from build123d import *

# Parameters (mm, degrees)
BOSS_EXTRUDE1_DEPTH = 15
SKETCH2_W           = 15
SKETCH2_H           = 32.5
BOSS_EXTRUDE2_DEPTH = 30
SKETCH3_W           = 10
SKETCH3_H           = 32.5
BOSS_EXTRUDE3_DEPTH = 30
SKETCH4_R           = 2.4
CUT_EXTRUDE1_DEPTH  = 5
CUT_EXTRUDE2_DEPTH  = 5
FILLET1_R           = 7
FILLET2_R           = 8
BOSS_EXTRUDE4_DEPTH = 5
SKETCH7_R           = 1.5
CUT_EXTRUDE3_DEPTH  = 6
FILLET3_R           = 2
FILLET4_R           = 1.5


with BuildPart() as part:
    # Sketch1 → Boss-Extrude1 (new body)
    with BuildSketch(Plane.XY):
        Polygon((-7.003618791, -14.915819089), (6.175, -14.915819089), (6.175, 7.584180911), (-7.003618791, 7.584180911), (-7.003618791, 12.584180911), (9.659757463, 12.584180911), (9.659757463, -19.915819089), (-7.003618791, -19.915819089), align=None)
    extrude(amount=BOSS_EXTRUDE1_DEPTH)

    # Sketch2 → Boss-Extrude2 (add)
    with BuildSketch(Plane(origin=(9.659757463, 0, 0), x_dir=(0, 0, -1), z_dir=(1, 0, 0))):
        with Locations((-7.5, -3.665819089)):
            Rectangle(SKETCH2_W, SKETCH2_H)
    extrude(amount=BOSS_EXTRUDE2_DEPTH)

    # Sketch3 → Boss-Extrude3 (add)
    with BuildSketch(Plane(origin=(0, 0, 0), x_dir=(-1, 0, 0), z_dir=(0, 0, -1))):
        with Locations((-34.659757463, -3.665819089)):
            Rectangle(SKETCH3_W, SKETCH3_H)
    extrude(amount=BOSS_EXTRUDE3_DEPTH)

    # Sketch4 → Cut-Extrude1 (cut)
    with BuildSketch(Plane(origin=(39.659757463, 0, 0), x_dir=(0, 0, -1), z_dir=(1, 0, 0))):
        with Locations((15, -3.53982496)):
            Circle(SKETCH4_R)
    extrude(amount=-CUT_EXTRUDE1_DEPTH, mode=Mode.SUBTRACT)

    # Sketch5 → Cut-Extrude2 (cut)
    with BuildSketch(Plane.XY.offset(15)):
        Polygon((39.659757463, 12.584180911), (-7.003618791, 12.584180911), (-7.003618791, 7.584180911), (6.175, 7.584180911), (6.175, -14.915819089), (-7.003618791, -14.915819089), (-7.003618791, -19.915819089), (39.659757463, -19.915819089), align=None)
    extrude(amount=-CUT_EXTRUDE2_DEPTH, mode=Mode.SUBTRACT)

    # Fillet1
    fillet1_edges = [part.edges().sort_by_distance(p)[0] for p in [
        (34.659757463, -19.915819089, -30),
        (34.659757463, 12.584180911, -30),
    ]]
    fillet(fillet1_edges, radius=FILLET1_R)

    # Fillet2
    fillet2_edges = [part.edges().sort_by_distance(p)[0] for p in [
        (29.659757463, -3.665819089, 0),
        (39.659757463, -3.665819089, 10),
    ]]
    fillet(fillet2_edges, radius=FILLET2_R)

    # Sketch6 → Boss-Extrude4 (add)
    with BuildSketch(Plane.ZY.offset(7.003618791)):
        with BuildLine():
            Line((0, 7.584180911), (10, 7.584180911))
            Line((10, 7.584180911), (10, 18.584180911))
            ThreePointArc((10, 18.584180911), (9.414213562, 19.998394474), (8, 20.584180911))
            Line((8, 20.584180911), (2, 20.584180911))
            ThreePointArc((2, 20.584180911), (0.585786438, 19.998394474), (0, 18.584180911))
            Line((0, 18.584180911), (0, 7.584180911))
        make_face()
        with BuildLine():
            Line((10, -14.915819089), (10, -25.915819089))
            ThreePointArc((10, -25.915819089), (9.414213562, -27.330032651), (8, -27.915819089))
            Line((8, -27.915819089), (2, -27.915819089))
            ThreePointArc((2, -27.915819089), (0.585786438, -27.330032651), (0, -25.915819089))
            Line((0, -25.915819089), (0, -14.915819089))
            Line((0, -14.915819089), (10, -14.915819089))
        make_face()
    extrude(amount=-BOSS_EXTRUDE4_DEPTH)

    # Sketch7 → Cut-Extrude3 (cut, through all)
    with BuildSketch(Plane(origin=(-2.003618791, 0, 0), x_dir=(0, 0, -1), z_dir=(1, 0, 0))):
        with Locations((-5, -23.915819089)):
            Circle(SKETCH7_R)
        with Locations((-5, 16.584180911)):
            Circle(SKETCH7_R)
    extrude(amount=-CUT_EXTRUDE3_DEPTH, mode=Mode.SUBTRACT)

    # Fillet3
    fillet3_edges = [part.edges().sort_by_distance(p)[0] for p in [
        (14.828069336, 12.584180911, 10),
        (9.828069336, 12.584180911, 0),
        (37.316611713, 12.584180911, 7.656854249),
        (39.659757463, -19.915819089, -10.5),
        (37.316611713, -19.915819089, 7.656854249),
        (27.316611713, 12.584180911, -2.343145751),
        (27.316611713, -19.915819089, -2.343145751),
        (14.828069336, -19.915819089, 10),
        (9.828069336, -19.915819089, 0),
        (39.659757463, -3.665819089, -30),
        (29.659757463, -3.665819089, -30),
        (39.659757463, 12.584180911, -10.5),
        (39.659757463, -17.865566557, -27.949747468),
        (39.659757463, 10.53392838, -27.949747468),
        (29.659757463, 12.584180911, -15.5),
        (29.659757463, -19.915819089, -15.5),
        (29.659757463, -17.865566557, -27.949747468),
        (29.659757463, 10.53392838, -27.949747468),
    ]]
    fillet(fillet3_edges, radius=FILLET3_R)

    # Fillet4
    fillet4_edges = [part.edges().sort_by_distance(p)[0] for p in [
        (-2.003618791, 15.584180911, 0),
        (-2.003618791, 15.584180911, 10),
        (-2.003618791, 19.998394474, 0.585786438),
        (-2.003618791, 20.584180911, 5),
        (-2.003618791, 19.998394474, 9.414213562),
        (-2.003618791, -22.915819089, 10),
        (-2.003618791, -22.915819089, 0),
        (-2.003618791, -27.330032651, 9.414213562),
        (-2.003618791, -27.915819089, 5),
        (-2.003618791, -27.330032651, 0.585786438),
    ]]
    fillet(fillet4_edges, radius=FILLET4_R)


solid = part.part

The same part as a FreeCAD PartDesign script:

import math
import FreeCAD as App
import Part
import Sketcher
Q = App.Units.Quantity


def edges_at(feature, points):
    """Names of the edges that pass closest to the given points."""
    edges = feature.Shape.Edges
    near = lambda p: min(range(len(edges)), key=lambda i: edges[i].distToShape(Part.Vertex(*p))[0])
    return sorted({f"Edge{near(p) + 1}" for p in points})

doc = App.newDocument("Part")
body = doc.addObject("PartDesign::Body", "Body")

# Sketch on XY plane
sketch1 = body.newObject("Sketcher::SketchObject", "Sketch")
sketch1.AttachmentSupport = (doc.getObject("XY_Plane"), [""])
sketch1.MapMode = "FlatFace"
sketch1.addGeometry([
    Part.LineSegment(App.Vector(6, -15, 0), App.Vector(-7, -15, 0)),  # 0
    Part.LineSegment(App.Vector(-7, -15, 0), App.Vector(-7, -20, 0)),  # 1
    Part.LineSegment(App.Vector(-7, -20, 0), App.Vector(10, -20, 0)),  # 2
    Part.LineSegment(App.Vector(10, -20, 0), App.Vector(10, 13, 0)),  # 3
    Part.LineSegment(App.Vector(10, 13, 0), App.Vector(-7, 13, 0)),  # 4
    Part.LineSegment(App.Vector(-7, 13, 0), App.Vector(-7, 8, 0)),  # 5
    Part.LineSegment(App.Vector(-7, 8, 0), App.Vector(6, 8, 0)),  # 6
    Part.LineSegment(App.Vector(6, 8, 0), App.Vector(6, -15, 0)),  # 7
], False)
sketch1.addConstraint([
    Sketcher.Constraint("Coincident", 0, 2, 1, 1),
    Sketcher.Constraint("Coincident", 1, 2, 2, 1),
    Sketcher.Constraint("Coincident", 2, 2, 3, 1),
    Sketcher.Constraint("Coincident", 3, 2, 4, 1),
    Sketcher.Constraint("Coincident", 4, 2, 5, 1),
    Sketcher.Constraint("Coincident", 5, 2, 6, 1),
    Sketcher.Constraint("Coincident", 6, 2, 7, 1),
    Sketcher.Constraint("Coincident", 7, 2, 0, 1),
    Sketcher.Constraint("Horizontal", 0),
    Sketcher.Constraint("Vertical", 1),
    Sketcher.Constraint("Horizontal", 2),
    Sketcher.Constraint("Vertical", 3),
    Sketcher.Constraint("Horizontal", 4),
    Sketcher.Constraint("Vertical", 5),
    Sketcher.Constraint("Horizontal", 6),
    Sketcher.Constraint("Vertical", 7),
    Sketcher.Constraint("Vertical", 1, 2, 4, 2),
    Sketcher.Constraint("Equal", 1, 5),
    Sketcher.Constraint("DistanceY", 1, 2, 1, 1, Q("5 mm")),
    Sketcher.Constraint("DistanceY", 3, 1, 3, 2, Q("32.5 mm")),
    Sketcher.Constraint("DistanceX", -1, 1, 6, 2, Q("6.175 mm")),
    Sketcher.Constraint("DistanceX", 0, 2, 0, 1, Q("13.178619 mm")),
    Sketcher.Constraint("DistanceX", 2, 1, 2, 2, Q("16.663376 mm")),
    Sketcher.Constraint("DistanceY", 0, 2, -1, 1, Q("14.915819 mm")),
])
pad1 = body.newObject("PartDesign::Pad", "Pad")
pad1.Profile = sketch1
pad1.Length = 15

# Sketch on YZ plane
sketch2 = body.newObject("Sketcher::SketchObject", "Sketch001")
sketch2.AttachmentSupport = (doc.getObject("YZ_Plane"), [""])
sketch2.MapMode = "FlatFace"
sketch2.AttachmentOffset = App.Placement(App.Vector(0, 0, 9.659757), App.Rotation())
sketch2.addGeometry([
    Part.LineSegment(App.Vector(13, 15, 0), App.Vector(-20, 15, 0)),
    Part.LineSegment(App.Vector(-20, 15, 0), App.Vector(-20, 0, 0)),
    Part.LineSegment(App.Vector(-20, 0, 0), App.Vector(13, 0, 0)),
    Part.LineSegment(App.Vector(13, 0, 0), App.Vector(13, 15, 0)),
], False)
sketch2.addConstraint([
    Sketcher.Constraint("Coincident", 0, 2, 1, 1),
    Sketcher.Constraint("Coincident", 1, 2, 2, 1),
    Sketcher.Constraint("Coincident", 2, 2, 3, 1),
    Sketcher.Constraint("Coincident", 3, 2, 0, 1),
    Sketcher.Constraint("Horizontal", 0),
    Sketcher.Constraint("Vertical", 1),
    Sketcher.Constraint("Horizontal", 2),
    Sketcher.Constraint("Vertical", 3),
    Sketcher.Constraint("PointOnObject", 1, 2, -1),
    Sketcher.Constraint("DistanceY", 1, 2, 1, 1, Q("15 mm")),
    Sketcher.Constraint("DistanceX", 0, 2, 0, 1, Q("32.5 mm")),
    Sketcher.Constraint("DistanceX", 0, 2, -1, 1, Q("19.915819 mm")),
])
pad2 = body.newObject("PartDesign::Pad", "Pad001")
pad2.Profile = sketch2
pad2.Length = 30

# Sketch on XY plane
sketch3 = body.newObject("Sketcher::SketchObject", "Sketch002")
sketch3.AttachmentSupport = (doc.getObject("XY_Plane"), [""])
sketch3.MapMode = "FlatFace"
sketch3.addGeometry([
    Part.LineSegment(App.Vector(40, 13, 0), App.Vector(40, -20, 0)),
    Part.LineSegment(App.Vector(40, -20, 0), App.Vector(30, -20, 0)),
    Part.LineSegment(App.Vector(30, -20, 0), App.Vector(30, 13, 0)),
    Part.LineSegment(App.Vector(30, 13, 0), App.Vector(40, 13, 0)),
], False)
sketch3.addConstraint([
    Sketcher.Constraint("Coincident", 0, 2, 1, 1),
    Sketcher.Constraint("Coincident", 1, 2, 2, 1),
    Sketcher.Constraint("Coincident", 2, 2, 3, 1),
    Sketcher.Constraint("Coincident", 3, 2, 0, 1),
    Sketcher.Constraint("Vertical", 0),
    Sketcher.Constraint("Horizontal", 1),
    Sketcher.Constraint("Vertical", 2),
    Sketcher.Constraint("Horizontal", 3),
    Sketcher.Constraint("DistanceX", 1, 2, 1, 1, Q("10 mm")),
    Sketcher.Constraint("DistanceY", 0, 2, 0, 1, Q("32.5 mm")),
    Sketcher.Constraint("DistanceY", 0, 2, -1, 1, Q("19.915819 mm")),
    Sketcher.Constraint("DistanceX", -1, 1, 0, 2, Q("39.659757 mm")),
])
pad3 = body.newObject("PartDesign::Pad", "Pad002")
pad3.Profile = sketch3
pad3.Length = 30
pad3.Reversed = True

# Sketch on YZ plane
sketch4 = body.newObject("Sketcher::SketchObject", "Sketch003")
sketch4.AttachmentSupport = (doc.getObject("YZ_Plane"), [""])
sketch4.MapMode = "FlatFace"
sketch4.AttachmentOffset = App.Placement(App.Vector(0, 0, 39.659757), App.Rotation())
sketch4.addGeometry(Part.Circle(App.Vector(-3.5, -15, 0), App.Vector(0, 0, 1), 2.4), False)
sketch4.addConstraint([
    Sketcher.Constraint("Diameter", 0, Q("4.8 mm")),
    Sketcher.Constraint("DistanceY", 0, 3, -1, 1, Q("15 mm")),
    Sketcher.Constraint("DistanceX", 0, 3, -1, 1, Q("3.539825 mm")),
])
pocket1 = body.newObject("PartDesign::Pocket", "Pocket")
pocket1.Profile = sketch4
pocket1.Length = 5

# Sketch on XY plane
sketch5 = body.newObject("Sketcher::SketchObject", "Sketch004")
sketch5.AttachmentSupport = (doc.getObject("XY_Plane"), [""])
sketch5.MapMode = "FlatFace"
sketch5.AttachmentOffset = App.Placement(App.Vector(0, 0, 15), App.Rotation())
sketch5.addGeometry([
    Part.LineSegment(App.Vector(40, 13, 0), App.Vector(-7, 13, 0)),  # 0
    Part.LineSegment(App.Vector(-7, 13, 0), App.Vector(-7, 8, 0)),  # 1
    Part.LineSegment(App.Vector(-7, 8, 0), App.Vector(6, 8, 0)),  # 2
    Part.LineSegment(App.Vector(6, 8, 0), App.Vector(6, -15, 0)),  # 3
    Part.LineSegment(App.Vector(6, -15, 0), App.Vector(-7, -15, 0)),  # 4
    Part.LineSegment(App.Vector(-7, -15, 0), App.Vector(-7, -20, 0)),  # 5
    Part.LineSegment(App.Vector(-7, -20, 0), App.Vector(40, -20, 0)),  # 6
    Part.LineSegment(App.Vector(40, -20, 0), App.Vector(40, 13, 0)),  # 7
], False)
sketch5.addConstraint([
    Sketcher.Constraint("Coincident", 0, 2, 1, 1),
    Sketcher.Constraint("Coincident", 1, 2, 2, 1),
    Sketcher.Constraint("Coincident", 2, 2, 3, 1),
    Sketcher.Constraint("Coincident", 3, 2, 4, 1),
    Sketcher.Constraint("Coincident", 4, 2, 5, 1),
    Sketcher.Constraint("Coincident", 5, 2, 6, 1),
    Sketcher.Constraint("Coincident", 6, 2, 7, 1),
    Sketcher.Constraint("Coincident", 7, 2, 0, 1),
    Sketcher.Constraint("Horizontal", 0),
    Sketcher.Constraint("Vertical", 1),
    Sketcher.Constraint("Horizontal", 2),
    Sketcher.Constraint("Vertical", 3),
    Sketcher.Constraint("Horizontal", 4),
    Sketcher.Constraint("Vertical", 5),
    Sketcher.Constraint("Horizontal", 6),
    Sketcher.Constraint("Vertical", 7),
    Sketcher.Constraint("Vertical", 1, 2, 4, 2),
    Sketcher.Constraint("Equal", 1, 5),
    Sketcher.Constraint("DistanceY", 1, 2, 1, 1, Q("5 mm")),
    Sketcher.Constraint("DistanceY", 3, 2, 3, 1, Q("22.5 mm")),
    Sketcher.Constraint("DistanceX", -1, 1, 2, 2, Q("6.175 mm")),
    Sketcher.Constraint("DistanceX", 2, 1, 2, 2, Q("13.178619 mm")),
    Sketcher.Constraint("DistanceX", 0, 2, 0, 1, Q("46.663376 mm")),
    Sketcher.Constraint("DistanceY", -1, 1, 0, 2, Q("12.584181 mm")),
])
pocket2 = body.newObject("PartDesign::Pocket", "Pocket001")
pocket2.Profile = sketch5
pocket2.Length = 5
doc.recompute()

fillet = body.newObject("PartDesign::Fillet", "Fillet")
fillet.Base = (pocket2, edges_at(pocket2, [(34.66, -19.916, -30), (34.66, 12.584, -30)]))
fillet.Radius = 7
doc.recompute()

fillet2 = body.newObject("PartDesign::Fillet", "Fillet001")
fillet2.Base = (fillet, edges_at(fillet, [(29.66, -3.666, 0), (39.66, -3.666, 10)]))
fillet2.Radius = 8

# Sketch on YZ plane
sketch6 = body.newObject("Sketcher::SketchObject", "Sketch005")
sketch6.AttachmentSupport = (doc.getObject("YZ_Plane"), [""])
sketch6.MapMode = "FlatFace"
sketch6.AttachmentOffset = App.Placement(App.Vector(0, 0, -7.003619), App.Rotation())
sketch6.addGeometry([
    Part.LineSegment(App.Vector(7.6, 0, 0), App.Vector(7.6, 10, 0)),  # 0
    Part.LineSegment(App.Vector(7.6, 10, 0), App.Vector(18.6, 10, 0)),  # 1
    Part.ArcOfCircle(Part.Circle(App.Vector(18.6, 8, 0), App.Vector(0, 0, 1), 2), math.radians(0), math.radians(90)),  # 2
    Part.LineSegment(App.Vector(20.6, 8, 0), App.Vector(20.6, 2, 0)),  # 3
    Part.ArcOfCircle(Part.Circle(App.Vector(18.6, 2, 0), App.Vector(0, 0, 1), 2), math.radians(-90), math.radians(0)),  # 4
    Part.LineSegment(App.Vector(18.6, 0, 0), App.Vector(7.6, 0, 0)),  # 5
    Part.LineSegment(App.Vector(-25.9, 10, 0), App.Vector(-14.9, 10, 0)),  # 6
    Part.LineSegment(App.Vector(-14.9, 10, 0), App.Vector(-14.9, 0, 0)),  # 7
    Part.LineSegment(App.Vector(-14.9, 0, 0), App.Vector(-25.9, 0, 0)),  # 8
    Part.ArcOfCircle(Part.Circle(App.Vector(-25.9, 2, 0), App.Vector(0, 0, 1), 2), math.radians(-180), math.radians(-90)),  # 9
    Part.LineSegment(App.Vector(-27.9, 2, 0), App.Vector(-27.9, 8, 0)),  # 10
    Part.ArcOfCircle(Part.Circle(App.Vector(-25.9, 8, 0), App.Vector(0, 0, 1), 2), math.radians(90), math.radians(180)),  # 11
], False)
sketch6.addConstraint([
    Sketcher.Constraint("Coincident", 0, 2, 1, 1),
    Sketcher.Constraint("Tangent", 1, 2, 2, 2),
    Sketcher.Constraint("Tangent", 2, 1, 3, 1),
    Sketcher.Constraint("Tangent", 3, 2, 4, 2),
    Sketcher.Constraint("Tangent", 4, 1, 5, 1),
    Sketcher.Constraint("Coincident", 5, 2, 0, 1),
    Sketcher.Constraint("Coincident", 6, 2, 7, 1),
    Sketcher.Constraint("Coincident", 7, 2, 8, 1),
    Sketcher.Constraint("Tangent", 8, 2, 9, 2),
    Sketcher.Constraint("Tangent", 9, 1, 10, 1),
    Sketcher.Constraint("Tangent", 10, 2, 11, 2),
    Sketcher.Constraint("Tangent", 11, 1, 6, 1),
    Sketcher.Constraint("Vertical", 0),
    Sketcher.Constraint("Horizontal", 1),
    Sketcher.Constraint("Vertical", 3),
    Sketcher.Constraint("Horizontal", 5),
    Sketcher.Constraint("Horizontal", 6),
    Sketcher.Constraint("Vertical", 7),
    Sketcher.Constraint("Horizontal", 8),
    Sketcher.Constraint("Vertical", 10),
    Sketcher.Constraint("Equal", 2, 4),
    Sketcher.Constraint("Equal", 4, 9),
    Sketcher.Constraint("Equal", 9, 11),
    Sketcher.Constraint("PointOnObject", 4, 1, -1),
    Sketcher.Constraint("PointOnObject", 7, 2, -1),
    Sketcher.Constraint("Horizontal", 2, 3, 11, 3),
    Sketcher.Constraint("Equal", 5, 6),
    Sketcher.Constraint("Radius", 2, Q("2 mm")),
    Sketcher.Constraint("DistanceX", 1, 1, 1, 2, Q("11 mm")),
    Sketcher.Constraint("DistanceY", 0, 1, 0, 2, Q("10 mm")),
    Sketcher.Constraint("DistanceX", 9, 3, 4, 3, Q("44.5 mm")),
    Sketcher.Constraint("DistanceX", -1, 1, 2, 3, Q("18.584181 mm")),
])
pad4 = body.newObject("PartDesign::Pad", "Pad003")
pad4.Profile = sketch6
pad4.Length = 5

# Sketch on YZ plane
sketch7 = body.newObject("Sketcher::SketchObject", "Sketch006")
sketch7.AttachmentSupport = (doc.getObject("YZ_Plane"), [""])
sketch7.MapMode = "FlatFace"
sketch7.AttachmentOffset = App.Placement(App.Vector(0, 0, -2.003619), App.Rotation())
sketch7.addGeometry([
    Part.Circle(App.Vector(-23.9, 5, 0), App.Vector(0, 0, 1), 1.5),
    Part.Circle(App.Vector(16.6, 5, 0), App.Vector(0, 0, 1), 1.5),
], False)
sketch7.addConstraint([
    Sketcher.Constraint("Equal", 0, 1),
    Sketcher.Constraint("Horizontal", 0, 3, 1, 3),
    Sketcher.Constraint("Diameter", 0, Q("3 mm")),
    Sketcher.Constraint("DistanceY", -1, 1, 0, 3, Q("5 mm")),
    Sketcher.Constraint("DistanceX", 0, 3, 1, 3, Q("40.5 mm")),
    Sketcher.Constraint("DistanceX", 0, 3, -1, 1, Q("23.915819 mm")),
])
pocket3 = body.newObject("PartDesign::Pocket", "Pocket002")
pocket3.Profile = sketch7
pocket3.Type = "ThroughAll"
doc.recompute()

fillet3 = body.newObject("PartDesign::Fillet", "Fillet002")
fillet3.Base = (pocket3, edges_at(pocket3, [
    (14.828, 12.584, 10),
    (9.828, 12.584, 0),
    (37.317, 12.584, 7.657),
    (39.66, -19.916, -10.5),
    (37.317, -19.916, 7.657),
    (27.317, 12.584, -2.343),
    (27.317, -19.916, -2.343),
    (14.828, -19.916, 10),
    (9.828, -19.916, 0),
    (39.66, -3.666, -30),
    (29.66, -3.666, -30),
    (39.66, 12.584, -10.5),
    (39.66, -17.866, -27.95),
    (39.66, 10.534, -27.95),
    (29.66, 12.584, -15.5),
    (29.66, -19.916, -15.5),
    (29.66, -17.866, -27.95),
    (29.66, 10.534, -27.95),
]))
fillet3.Radius = 2
doc.recompute()

fillet4 = body.newObject("PartDesign::Fillet", "Fillet003")
fillet4.Base = (fillet3, edges_at(fillet3, [
    (-2.004, 14.584, 0),
    (-2.004, 14.584, 10),
    (-2.004, 19.998, 0.586),
    (-2.004, 20.584, 5),
    (-2.004, 19.998, 9.414),
    (-2.004, -21.916, 10),
    (-2.004, -21.916, 0),
    (-2.004, -27.33, 9.414),
    (-2.004, -27.916, 5),
    (-2.004, -27.33, 0.586),
]))
fillet4.Radius = 1.5

doc.recompute()
